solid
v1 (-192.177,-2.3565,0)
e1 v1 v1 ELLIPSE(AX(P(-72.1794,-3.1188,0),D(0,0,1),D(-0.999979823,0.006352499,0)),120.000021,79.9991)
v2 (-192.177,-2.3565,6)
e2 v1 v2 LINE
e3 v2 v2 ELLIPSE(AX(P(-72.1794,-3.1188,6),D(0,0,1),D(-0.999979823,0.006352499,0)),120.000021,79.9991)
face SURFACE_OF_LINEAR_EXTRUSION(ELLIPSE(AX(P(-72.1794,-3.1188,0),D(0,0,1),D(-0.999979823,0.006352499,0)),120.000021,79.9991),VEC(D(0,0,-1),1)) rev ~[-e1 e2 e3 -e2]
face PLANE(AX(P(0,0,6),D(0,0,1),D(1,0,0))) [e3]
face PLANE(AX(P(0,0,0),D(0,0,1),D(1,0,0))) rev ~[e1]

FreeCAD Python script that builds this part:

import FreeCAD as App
import Part
import Sketcher

doc = App.newDocument("Part")
body = doc.addObject("PartDesign::Body", "Body")

sketch1 = body.newObject("Sketcher::SketchObject", "Sketch")
sketch1.AttachmentSupport = (doc.getObject("XY_Plane"), [""])
sketch1.MapMode = "FlatFace"
sketch1.addGeometry(Part.Ellipse(App.Vector(-192.177, -2.3565, 0), App.Vector(-72.687594, -83.116286, 0), App.Vector(-72.1794, -3.1188, 0)), False)
sketch1.addConstraint(Sketcher.Constraint("Block", 0))
pad1 = body.newObject("PartDesign::Pad", "Pad")
pad1.Profile = sketch1
pad1.Length = 6

doc.recompute()
